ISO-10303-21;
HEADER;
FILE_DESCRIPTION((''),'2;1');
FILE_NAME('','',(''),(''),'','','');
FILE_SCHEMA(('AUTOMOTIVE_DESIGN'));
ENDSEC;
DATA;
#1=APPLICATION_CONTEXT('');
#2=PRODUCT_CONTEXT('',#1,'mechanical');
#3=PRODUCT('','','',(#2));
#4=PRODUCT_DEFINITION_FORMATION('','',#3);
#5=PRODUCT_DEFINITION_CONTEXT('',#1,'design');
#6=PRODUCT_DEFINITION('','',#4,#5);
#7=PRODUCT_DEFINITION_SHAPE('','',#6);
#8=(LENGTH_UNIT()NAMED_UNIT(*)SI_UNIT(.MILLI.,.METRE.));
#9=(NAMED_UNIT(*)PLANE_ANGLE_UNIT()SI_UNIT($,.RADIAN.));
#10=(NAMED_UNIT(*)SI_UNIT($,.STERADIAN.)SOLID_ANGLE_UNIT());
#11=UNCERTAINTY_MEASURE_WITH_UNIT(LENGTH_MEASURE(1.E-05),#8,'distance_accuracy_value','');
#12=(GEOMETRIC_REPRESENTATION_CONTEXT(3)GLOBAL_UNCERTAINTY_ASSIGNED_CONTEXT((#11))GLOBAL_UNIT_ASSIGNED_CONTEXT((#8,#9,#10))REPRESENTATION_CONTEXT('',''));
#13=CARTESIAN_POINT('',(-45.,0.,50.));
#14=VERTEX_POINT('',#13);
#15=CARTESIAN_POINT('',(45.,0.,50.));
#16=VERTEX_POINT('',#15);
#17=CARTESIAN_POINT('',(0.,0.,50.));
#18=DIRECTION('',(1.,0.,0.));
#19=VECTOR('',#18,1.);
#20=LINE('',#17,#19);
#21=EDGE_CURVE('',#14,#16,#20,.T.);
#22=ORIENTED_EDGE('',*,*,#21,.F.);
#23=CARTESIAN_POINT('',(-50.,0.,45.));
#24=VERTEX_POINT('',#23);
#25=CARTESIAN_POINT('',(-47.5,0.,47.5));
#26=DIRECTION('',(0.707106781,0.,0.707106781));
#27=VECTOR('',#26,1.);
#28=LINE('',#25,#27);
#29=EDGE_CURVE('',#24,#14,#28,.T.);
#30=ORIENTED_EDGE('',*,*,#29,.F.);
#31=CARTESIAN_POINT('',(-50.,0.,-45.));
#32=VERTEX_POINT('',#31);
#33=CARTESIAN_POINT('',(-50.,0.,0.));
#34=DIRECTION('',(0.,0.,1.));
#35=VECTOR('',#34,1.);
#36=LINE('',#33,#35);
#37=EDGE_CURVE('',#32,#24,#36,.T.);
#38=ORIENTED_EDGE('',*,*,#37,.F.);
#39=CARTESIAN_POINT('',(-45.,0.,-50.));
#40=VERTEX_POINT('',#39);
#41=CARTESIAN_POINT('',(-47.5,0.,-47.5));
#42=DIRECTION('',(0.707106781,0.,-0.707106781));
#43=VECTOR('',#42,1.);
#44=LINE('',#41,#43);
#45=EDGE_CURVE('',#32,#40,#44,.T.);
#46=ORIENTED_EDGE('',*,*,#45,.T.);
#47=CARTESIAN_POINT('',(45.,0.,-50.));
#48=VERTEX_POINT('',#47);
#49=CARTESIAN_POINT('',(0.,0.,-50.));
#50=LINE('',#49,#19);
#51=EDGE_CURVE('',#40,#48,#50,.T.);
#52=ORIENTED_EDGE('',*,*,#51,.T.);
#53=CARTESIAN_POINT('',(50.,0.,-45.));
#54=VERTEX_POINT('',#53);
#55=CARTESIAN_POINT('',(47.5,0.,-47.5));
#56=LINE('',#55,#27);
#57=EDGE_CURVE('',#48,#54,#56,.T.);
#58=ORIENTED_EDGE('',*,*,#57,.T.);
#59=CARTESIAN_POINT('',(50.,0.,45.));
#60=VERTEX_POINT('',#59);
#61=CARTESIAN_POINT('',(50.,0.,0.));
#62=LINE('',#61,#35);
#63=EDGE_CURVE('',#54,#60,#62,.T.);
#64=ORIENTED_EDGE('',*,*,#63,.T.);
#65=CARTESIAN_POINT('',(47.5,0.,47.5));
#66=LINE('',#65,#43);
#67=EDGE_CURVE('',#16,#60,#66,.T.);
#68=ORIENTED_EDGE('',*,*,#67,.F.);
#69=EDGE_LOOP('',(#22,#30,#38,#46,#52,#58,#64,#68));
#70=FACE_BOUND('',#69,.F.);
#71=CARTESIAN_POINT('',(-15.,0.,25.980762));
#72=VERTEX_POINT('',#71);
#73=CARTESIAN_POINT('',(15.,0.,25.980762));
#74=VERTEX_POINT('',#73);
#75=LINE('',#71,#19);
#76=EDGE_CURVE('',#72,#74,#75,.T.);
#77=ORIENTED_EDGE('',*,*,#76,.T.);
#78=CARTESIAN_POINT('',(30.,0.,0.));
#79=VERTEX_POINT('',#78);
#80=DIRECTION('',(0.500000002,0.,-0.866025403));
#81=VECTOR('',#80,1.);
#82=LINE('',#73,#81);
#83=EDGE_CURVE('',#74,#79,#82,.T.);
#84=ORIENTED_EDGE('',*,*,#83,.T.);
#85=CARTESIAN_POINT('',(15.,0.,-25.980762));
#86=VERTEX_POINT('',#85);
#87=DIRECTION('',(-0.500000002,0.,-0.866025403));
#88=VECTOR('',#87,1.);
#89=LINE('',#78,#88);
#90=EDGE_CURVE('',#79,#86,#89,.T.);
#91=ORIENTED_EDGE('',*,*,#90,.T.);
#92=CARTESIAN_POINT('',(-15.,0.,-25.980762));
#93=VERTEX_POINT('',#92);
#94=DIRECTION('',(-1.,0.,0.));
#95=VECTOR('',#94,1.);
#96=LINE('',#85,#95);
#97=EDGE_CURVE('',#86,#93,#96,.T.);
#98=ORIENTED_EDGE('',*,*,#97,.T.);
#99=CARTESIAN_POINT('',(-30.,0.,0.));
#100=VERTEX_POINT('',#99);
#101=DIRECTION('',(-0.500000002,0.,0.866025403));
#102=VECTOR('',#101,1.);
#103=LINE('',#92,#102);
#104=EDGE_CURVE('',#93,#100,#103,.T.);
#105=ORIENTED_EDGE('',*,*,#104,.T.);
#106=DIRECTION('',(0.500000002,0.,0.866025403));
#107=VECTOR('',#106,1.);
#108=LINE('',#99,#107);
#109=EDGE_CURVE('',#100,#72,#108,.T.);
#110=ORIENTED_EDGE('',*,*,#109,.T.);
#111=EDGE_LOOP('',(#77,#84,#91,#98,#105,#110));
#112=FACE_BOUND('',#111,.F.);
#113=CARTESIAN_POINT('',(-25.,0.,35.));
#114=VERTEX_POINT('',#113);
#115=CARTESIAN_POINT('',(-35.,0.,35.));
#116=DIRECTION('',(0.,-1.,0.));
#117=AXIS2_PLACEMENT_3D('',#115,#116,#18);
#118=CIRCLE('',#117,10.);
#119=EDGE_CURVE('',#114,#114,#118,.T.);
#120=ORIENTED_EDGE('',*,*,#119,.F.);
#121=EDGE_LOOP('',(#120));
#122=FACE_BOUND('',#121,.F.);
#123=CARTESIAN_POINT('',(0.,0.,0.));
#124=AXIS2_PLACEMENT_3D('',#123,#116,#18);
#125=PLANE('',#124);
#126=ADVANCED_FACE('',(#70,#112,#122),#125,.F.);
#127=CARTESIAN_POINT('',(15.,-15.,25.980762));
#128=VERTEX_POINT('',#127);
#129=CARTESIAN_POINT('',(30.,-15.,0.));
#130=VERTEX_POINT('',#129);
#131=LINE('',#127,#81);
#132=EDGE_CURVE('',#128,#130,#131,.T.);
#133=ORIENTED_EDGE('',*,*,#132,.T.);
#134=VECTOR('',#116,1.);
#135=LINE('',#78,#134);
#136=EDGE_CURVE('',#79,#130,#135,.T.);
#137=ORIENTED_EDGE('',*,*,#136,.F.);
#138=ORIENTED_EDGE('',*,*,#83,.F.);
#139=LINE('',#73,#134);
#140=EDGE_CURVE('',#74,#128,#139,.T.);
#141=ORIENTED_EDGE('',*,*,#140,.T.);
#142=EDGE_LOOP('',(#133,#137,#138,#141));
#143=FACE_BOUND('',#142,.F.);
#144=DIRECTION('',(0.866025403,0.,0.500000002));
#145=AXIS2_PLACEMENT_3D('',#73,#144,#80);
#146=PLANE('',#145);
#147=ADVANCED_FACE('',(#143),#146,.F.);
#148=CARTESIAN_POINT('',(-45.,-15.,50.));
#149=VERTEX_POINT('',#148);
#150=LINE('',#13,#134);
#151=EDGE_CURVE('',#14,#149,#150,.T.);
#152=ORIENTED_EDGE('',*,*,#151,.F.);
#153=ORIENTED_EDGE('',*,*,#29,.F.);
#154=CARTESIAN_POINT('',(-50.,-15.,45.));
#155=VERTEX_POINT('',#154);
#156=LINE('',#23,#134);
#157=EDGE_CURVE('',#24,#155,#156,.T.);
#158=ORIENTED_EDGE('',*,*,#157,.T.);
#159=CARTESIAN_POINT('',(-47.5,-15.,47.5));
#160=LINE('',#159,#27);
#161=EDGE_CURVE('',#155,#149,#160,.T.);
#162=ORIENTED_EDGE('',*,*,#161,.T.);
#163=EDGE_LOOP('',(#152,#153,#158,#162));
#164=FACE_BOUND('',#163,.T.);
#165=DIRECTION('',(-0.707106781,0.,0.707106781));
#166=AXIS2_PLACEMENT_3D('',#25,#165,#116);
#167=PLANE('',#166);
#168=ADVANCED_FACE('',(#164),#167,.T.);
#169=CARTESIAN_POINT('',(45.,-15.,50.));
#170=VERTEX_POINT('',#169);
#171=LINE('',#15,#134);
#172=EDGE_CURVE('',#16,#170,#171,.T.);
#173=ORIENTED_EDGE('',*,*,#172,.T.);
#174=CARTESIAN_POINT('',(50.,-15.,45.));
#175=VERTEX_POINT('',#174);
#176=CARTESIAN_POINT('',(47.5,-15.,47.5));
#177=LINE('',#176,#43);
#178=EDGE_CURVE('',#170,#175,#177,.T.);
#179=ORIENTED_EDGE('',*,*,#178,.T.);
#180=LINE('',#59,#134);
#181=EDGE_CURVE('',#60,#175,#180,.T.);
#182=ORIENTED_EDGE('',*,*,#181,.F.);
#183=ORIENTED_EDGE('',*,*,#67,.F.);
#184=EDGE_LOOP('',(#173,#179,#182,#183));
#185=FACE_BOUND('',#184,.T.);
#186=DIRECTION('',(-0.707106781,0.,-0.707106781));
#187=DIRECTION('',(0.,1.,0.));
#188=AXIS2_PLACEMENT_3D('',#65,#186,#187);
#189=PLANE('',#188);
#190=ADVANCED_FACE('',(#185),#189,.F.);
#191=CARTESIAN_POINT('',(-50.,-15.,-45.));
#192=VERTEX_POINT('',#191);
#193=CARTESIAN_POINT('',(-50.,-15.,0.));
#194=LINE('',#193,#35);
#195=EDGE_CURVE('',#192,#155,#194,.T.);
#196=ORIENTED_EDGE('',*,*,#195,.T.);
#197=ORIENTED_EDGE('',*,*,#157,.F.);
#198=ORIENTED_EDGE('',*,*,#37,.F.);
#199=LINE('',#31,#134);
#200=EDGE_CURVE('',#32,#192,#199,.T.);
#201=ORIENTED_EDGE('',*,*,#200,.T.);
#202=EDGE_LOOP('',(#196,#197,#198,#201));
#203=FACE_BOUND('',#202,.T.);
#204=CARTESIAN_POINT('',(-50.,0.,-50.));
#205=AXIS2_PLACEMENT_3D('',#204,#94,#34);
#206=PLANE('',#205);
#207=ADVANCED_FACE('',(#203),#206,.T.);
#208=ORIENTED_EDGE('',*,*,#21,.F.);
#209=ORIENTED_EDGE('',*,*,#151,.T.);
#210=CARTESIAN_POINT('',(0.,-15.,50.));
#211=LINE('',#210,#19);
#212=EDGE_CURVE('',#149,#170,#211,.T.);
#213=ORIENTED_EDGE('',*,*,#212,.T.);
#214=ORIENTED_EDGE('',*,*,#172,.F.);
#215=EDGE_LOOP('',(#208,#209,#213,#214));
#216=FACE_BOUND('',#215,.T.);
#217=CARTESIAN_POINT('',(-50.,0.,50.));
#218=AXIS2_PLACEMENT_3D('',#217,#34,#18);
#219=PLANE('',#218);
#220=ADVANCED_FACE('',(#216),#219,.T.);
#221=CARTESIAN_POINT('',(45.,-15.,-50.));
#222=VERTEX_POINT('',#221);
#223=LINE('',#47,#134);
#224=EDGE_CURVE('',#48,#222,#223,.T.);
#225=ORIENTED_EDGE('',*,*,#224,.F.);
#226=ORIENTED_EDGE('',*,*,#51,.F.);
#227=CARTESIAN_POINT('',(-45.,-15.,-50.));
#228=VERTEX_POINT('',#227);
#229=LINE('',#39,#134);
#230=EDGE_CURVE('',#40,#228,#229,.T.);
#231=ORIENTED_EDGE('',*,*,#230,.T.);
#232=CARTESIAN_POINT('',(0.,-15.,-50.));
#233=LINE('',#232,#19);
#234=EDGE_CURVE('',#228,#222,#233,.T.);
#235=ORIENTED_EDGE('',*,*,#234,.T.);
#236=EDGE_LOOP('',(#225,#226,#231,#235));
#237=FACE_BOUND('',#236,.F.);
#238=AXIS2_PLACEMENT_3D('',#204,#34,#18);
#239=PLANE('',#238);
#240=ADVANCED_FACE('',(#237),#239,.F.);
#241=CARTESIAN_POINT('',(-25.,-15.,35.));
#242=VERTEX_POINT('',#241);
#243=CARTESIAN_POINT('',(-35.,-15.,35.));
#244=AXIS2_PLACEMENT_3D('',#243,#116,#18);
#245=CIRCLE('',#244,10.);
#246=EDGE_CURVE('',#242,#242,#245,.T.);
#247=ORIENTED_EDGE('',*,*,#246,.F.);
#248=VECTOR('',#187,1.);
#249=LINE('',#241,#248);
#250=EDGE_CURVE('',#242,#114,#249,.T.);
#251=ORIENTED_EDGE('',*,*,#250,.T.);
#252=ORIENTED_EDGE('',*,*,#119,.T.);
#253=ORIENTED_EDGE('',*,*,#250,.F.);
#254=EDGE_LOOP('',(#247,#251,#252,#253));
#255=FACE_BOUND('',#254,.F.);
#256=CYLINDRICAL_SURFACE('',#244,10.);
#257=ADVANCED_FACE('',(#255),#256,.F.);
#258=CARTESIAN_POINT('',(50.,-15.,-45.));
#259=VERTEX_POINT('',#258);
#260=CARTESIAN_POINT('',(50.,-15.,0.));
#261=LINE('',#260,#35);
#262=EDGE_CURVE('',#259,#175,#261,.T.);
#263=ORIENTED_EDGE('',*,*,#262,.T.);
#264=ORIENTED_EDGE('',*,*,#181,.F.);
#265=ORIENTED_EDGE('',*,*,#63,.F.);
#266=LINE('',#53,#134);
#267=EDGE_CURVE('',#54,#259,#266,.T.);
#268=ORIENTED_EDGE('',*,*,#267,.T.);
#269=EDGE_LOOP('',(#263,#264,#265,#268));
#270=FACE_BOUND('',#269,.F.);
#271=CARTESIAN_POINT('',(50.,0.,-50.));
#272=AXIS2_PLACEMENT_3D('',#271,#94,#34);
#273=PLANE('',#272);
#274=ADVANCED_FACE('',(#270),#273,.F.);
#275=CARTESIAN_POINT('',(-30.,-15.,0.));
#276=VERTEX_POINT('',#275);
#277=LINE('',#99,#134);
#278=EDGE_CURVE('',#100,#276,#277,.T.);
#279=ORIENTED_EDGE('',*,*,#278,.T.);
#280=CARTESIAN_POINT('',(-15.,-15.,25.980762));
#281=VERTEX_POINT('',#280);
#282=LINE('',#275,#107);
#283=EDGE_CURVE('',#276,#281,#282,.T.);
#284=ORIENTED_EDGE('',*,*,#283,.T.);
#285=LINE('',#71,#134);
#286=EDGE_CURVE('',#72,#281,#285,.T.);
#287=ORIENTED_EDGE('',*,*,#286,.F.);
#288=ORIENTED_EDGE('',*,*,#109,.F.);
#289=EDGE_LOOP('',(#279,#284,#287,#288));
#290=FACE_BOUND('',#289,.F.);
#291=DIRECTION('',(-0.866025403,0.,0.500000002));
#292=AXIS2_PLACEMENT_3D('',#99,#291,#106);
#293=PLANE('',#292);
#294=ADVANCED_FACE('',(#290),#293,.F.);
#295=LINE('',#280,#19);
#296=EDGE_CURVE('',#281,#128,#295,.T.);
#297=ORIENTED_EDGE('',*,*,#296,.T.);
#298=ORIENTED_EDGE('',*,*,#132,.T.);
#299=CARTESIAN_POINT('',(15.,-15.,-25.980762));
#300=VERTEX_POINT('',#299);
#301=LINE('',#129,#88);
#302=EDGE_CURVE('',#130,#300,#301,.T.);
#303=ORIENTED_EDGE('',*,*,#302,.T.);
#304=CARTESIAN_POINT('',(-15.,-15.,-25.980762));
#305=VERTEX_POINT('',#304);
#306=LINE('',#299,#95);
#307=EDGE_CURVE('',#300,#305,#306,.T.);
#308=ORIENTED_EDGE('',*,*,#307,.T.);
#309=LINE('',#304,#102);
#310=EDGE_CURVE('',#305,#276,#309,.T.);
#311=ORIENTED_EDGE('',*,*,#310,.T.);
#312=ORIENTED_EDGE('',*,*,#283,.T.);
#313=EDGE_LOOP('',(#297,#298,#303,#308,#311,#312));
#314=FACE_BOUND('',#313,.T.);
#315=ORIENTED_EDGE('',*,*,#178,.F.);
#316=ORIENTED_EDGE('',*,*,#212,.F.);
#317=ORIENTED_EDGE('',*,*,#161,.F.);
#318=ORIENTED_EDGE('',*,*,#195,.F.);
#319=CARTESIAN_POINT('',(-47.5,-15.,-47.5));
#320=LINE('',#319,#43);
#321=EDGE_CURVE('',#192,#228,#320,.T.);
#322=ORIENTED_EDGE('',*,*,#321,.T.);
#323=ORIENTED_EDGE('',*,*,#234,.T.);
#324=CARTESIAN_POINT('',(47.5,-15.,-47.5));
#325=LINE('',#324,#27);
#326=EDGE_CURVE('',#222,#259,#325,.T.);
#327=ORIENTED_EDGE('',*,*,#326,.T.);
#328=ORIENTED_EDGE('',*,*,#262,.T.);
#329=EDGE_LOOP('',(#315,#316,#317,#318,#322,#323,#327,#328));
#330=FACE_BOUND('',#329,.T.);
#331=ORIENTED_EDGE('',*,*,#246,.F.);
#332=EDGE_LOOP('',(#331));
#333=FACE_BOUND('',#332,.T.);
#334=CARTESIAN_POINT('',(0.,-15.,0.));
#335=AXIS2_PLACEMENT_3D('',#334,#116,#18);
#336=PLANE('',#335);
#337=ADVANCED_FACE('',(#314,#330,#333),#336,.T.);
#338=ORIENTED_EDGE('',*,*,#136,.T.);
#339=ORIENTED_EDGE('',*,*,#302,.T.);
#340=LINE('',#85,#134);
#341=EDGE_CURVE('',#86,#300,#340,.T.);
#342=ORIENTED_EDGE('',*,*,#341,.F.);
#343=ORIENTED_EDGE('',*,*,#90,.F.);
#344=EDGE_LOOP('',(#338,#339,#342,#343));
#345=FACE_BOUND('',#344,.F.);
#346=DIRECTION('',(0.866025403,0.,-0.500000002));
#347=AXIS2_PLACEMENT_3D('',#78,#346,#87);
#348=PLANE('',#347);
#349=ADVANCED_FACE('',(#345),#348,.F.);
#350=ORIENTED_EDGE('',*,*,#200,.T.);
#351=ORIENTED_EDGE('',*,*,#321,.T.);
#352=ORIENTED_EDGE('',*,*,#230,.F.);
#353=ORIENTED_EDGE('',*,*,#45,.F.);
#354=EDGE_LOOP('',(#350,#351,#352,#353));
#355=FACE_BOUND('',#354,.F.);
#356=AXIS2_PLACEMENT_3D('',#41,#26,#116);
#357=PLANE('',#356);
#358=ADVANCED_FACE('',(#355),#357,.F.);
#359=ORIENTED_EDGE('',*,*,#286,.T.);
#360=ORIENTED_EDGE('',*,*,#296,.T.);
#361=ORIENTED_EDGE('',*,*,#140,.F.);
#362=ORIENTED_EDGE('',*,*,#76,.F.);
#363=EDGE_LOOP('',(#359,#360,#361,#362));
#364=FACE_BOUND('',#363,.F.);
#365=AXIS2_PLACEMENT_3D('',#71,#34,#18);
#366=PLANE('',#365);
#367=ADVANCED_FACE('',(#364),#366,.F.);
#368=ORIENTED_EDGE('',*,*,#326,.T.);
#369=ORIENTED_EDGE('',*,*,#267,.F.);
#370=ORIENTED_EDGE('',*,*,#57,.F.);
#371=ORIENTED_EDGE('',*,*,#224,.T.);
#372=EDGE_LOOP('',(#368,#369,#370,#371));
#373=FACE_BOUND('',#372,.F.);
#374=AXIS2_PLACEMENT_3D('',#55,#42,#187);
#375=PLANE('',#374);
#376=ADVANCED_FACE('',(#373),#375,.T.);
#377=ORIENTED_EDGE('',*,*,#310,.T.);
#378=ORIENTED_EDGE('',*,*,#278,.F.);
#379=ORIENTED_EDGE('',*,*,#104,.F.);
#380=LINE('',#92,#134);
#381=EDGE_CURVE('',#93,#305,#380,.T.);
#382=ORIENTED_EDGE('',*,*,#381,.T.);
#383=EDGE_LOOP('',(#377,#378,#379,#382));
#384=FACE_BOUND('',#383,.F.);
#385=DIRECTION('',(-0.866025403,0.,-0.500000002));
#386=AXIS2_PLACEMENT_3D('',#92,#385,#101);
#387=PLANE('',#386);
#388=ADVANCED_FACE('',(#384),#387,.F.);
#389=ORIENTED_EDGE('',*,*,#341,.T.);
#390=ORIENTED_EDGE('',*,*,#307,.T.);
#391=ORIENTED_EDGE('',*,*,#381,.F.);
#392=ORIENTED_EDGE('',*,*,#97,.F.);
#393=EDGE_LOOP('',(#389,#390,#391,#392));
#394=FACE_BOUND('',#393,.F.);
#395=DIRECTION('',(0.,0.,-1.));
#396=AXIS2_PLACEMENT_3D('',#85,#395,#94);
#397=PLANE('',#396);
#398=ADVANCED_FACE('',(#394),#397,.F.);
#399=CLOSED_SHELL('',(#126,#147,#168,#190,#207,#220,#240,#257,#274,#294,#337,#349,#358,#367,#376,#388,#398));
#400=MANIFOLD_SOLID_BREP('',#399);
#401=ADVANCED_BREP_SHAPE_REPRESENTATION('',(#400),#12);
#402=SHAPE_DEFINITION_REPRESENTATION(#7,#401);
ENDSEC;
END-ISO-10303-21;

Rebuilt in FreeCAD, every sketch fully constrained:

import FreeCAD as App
import Part
import Sketcher
from FreeCAD import Vector
Q = App.Units.Quantity


def edges_at(feature, points):
    """Names of the edges that pass closest to the given points."""
    edges = feature.Shape.Edges
    near = lambda p: min(range(len(edges)), key=lambda i: edges[i].distToShape(Part.Vertex(*p))[0])
    return sorted({f"Edge{near(p) + 1}" for p in points})


def add_polygon(sketch, points):
    """Adds a closed chain of lines whose ends are joined by coincident constraints."""
    first, n = sketch.GeometryCount, len(points)
    for a, b in zip(points, points[1:] + points[:1]):
        sketch.addGeometry(Part.LineSegment(App.Vector(*a, 0), App.Vector(*b, 0)), False)
    for i in range(n):
        sketch.addConstraint(Sketcher.Constraint("Coincident", first + i, 2, first + (i + 1) % n, 1))

doc = App.newDocument("Part")
params = doc.addObject("Spreadsheet::Sheet", "Params")
for row, (alias, value) in enumerate([
    ("sketch1_width", "100 mm"),
    ("sketch1_width2", "30 mm"),
    ("sketch1_length", "30 mm"),
    ("pad1_length", "15 mm"),
    ("sketch2_diameter", "20 mm"),
    ("chamfer_size", "5 mm"),
], start=1):
    params.set(f"A{row}", alias)
    params.set(f"B{row}", "=" + value)
    params.setAlias(f"B{row}", alias)

body = doc.addObject("PartDesign::Body", "Body")

# Sketch on XZ plane
sketch1 = body.newObject("Sketcher::SketchObject", "Sketch")
sketch1.AttachmentSupport = (doc.getObject("XZ_Plane"), [""])
sketch1.MapMode = "FlatFace"
add_polygon(sketch1, [(-50, 50), (-50, -50), (50, -50), (50, 50)])  # lines 0-3
add_polygon(sketch1, [(-15, 26), (15, 26), (30, 0), (15, -26), (-15, -26), (-30, 0)])  # lines 4-9
sketch1.addConstraint(Sketcher.Constraint("Vertical", 0))
sketch1.addConstraint(Sketcher.Constraint("Horizontal", 1))
sketch1.addConstraint(Sketcher.Constraint("Vertical", 2))
sketch1.addConstraint(Sketcher.Constraint("Horizontal", 3))
sketch1.addConstraint(Sketcher.Constraint("Horizontal", 4))
sketch1.addConstraint(Sketcher.Constraint("Horizontal", 7))
sketch1.addConstraint(Sketcher.Constraint("Symmetric", 0, 2, 2, 2, -1, 1))
sketch1.addConstraint(Sketcher.Constraint("Symmetric", 4, 2, 7, 2, -1, 1))
sketch1.addConstraint(Sketcher.Constraint("Symmetric", 5, 2, 8, 2, -1, 1))
sketch1.addConstraint(Sketcher.Constraint("PointOnObject", 5, 2, -1))
sketch1.addConstraint(Sketcher.Constraint("Parallel", 6, 9))
sketch1.addConstraint(Sketcher.Constraint("Vertical", 4, 2, 6, 2))
sketch1.addConstraint(Sketcher.Constraint("Equal", 3, 0))
sketch1.addConstraint(Sketcher.Constraint("DistanceX", 1, 1, 1, 2, Q("100 mm")))
sketch1.addConstraint(Sketcher.Constraint("DistanceX", 4, 1, 4, 2, Q("30 mm")))
sketch1.addConstraint(Sketcher.Constraint("Angle", 5, Q("-60 deg")))
sketch1.addConstraint(Sketcher.Constraint("Distance", 5, Q("30 mm")))
sketch1.setExpression("Constraints[23]", "Params.sketch1_width")
sketch1.setExpression("Constraints[24]", "Params.sketch1_width2")
sketch1.setExpression("Constraints[26]", "Params.sketch1_length")
pad1 = body.newObject("PartDesign::Pad", "Pad")
pad1.Profile = sketch1
pad1.setExpression("Length", "Params.pad1_length")

# Sketch on XZ plane
sketch2 = body.newObject("Sketcher::SketchObject", "Sketch001")
sketch2.AttachmentSupport = (doc.getObject("XZ_Plane"), [""])
sketch2.MapMode = "FlatFace"
sketch2.AttachmentOffset = App.Placement(Vector(0, 0, 15), App.Rotation())
sketch2.addGeometry(Part.Circle(Vector(-35, 35, 0), Vector(0, 0, 1), 10), False)
sketch2.addConstraint(Sketcher.Constraint("Diameter", 0, Q("20 mm")))
sketch2.addConstraint(Sketcher.Constraint("DistanceX", 0, 3, -1, 1, Q("35 mm")))
sketch2.addConstraint(Sketcher.Constraint("DistanceY", -1, 1, 0, 3, Q("35 mm")))
sketch2.setExpression("Constraints[0]", "Params.sketch2_diameter")
pocket1 = body.newObject("PartDesign::Pocket", "Pocket")
pocket1.Profile = sketch2
pocket1.Type = "ThroughAll"
doc.recompute()

chamfer = body.newObject("PartDesign::Chamfer", "Chamfer")
chamfer.Base = (pocket1, edges_at(pocket1, [
    (50, -7.5, 50),
    (-50, -7.5, 50),
    (50, -7.5, -50),
    (-50, -7.5, -50),
]))
chamfer.setExpression("Size", "Params.chamfer_size")

doc.recompute()
